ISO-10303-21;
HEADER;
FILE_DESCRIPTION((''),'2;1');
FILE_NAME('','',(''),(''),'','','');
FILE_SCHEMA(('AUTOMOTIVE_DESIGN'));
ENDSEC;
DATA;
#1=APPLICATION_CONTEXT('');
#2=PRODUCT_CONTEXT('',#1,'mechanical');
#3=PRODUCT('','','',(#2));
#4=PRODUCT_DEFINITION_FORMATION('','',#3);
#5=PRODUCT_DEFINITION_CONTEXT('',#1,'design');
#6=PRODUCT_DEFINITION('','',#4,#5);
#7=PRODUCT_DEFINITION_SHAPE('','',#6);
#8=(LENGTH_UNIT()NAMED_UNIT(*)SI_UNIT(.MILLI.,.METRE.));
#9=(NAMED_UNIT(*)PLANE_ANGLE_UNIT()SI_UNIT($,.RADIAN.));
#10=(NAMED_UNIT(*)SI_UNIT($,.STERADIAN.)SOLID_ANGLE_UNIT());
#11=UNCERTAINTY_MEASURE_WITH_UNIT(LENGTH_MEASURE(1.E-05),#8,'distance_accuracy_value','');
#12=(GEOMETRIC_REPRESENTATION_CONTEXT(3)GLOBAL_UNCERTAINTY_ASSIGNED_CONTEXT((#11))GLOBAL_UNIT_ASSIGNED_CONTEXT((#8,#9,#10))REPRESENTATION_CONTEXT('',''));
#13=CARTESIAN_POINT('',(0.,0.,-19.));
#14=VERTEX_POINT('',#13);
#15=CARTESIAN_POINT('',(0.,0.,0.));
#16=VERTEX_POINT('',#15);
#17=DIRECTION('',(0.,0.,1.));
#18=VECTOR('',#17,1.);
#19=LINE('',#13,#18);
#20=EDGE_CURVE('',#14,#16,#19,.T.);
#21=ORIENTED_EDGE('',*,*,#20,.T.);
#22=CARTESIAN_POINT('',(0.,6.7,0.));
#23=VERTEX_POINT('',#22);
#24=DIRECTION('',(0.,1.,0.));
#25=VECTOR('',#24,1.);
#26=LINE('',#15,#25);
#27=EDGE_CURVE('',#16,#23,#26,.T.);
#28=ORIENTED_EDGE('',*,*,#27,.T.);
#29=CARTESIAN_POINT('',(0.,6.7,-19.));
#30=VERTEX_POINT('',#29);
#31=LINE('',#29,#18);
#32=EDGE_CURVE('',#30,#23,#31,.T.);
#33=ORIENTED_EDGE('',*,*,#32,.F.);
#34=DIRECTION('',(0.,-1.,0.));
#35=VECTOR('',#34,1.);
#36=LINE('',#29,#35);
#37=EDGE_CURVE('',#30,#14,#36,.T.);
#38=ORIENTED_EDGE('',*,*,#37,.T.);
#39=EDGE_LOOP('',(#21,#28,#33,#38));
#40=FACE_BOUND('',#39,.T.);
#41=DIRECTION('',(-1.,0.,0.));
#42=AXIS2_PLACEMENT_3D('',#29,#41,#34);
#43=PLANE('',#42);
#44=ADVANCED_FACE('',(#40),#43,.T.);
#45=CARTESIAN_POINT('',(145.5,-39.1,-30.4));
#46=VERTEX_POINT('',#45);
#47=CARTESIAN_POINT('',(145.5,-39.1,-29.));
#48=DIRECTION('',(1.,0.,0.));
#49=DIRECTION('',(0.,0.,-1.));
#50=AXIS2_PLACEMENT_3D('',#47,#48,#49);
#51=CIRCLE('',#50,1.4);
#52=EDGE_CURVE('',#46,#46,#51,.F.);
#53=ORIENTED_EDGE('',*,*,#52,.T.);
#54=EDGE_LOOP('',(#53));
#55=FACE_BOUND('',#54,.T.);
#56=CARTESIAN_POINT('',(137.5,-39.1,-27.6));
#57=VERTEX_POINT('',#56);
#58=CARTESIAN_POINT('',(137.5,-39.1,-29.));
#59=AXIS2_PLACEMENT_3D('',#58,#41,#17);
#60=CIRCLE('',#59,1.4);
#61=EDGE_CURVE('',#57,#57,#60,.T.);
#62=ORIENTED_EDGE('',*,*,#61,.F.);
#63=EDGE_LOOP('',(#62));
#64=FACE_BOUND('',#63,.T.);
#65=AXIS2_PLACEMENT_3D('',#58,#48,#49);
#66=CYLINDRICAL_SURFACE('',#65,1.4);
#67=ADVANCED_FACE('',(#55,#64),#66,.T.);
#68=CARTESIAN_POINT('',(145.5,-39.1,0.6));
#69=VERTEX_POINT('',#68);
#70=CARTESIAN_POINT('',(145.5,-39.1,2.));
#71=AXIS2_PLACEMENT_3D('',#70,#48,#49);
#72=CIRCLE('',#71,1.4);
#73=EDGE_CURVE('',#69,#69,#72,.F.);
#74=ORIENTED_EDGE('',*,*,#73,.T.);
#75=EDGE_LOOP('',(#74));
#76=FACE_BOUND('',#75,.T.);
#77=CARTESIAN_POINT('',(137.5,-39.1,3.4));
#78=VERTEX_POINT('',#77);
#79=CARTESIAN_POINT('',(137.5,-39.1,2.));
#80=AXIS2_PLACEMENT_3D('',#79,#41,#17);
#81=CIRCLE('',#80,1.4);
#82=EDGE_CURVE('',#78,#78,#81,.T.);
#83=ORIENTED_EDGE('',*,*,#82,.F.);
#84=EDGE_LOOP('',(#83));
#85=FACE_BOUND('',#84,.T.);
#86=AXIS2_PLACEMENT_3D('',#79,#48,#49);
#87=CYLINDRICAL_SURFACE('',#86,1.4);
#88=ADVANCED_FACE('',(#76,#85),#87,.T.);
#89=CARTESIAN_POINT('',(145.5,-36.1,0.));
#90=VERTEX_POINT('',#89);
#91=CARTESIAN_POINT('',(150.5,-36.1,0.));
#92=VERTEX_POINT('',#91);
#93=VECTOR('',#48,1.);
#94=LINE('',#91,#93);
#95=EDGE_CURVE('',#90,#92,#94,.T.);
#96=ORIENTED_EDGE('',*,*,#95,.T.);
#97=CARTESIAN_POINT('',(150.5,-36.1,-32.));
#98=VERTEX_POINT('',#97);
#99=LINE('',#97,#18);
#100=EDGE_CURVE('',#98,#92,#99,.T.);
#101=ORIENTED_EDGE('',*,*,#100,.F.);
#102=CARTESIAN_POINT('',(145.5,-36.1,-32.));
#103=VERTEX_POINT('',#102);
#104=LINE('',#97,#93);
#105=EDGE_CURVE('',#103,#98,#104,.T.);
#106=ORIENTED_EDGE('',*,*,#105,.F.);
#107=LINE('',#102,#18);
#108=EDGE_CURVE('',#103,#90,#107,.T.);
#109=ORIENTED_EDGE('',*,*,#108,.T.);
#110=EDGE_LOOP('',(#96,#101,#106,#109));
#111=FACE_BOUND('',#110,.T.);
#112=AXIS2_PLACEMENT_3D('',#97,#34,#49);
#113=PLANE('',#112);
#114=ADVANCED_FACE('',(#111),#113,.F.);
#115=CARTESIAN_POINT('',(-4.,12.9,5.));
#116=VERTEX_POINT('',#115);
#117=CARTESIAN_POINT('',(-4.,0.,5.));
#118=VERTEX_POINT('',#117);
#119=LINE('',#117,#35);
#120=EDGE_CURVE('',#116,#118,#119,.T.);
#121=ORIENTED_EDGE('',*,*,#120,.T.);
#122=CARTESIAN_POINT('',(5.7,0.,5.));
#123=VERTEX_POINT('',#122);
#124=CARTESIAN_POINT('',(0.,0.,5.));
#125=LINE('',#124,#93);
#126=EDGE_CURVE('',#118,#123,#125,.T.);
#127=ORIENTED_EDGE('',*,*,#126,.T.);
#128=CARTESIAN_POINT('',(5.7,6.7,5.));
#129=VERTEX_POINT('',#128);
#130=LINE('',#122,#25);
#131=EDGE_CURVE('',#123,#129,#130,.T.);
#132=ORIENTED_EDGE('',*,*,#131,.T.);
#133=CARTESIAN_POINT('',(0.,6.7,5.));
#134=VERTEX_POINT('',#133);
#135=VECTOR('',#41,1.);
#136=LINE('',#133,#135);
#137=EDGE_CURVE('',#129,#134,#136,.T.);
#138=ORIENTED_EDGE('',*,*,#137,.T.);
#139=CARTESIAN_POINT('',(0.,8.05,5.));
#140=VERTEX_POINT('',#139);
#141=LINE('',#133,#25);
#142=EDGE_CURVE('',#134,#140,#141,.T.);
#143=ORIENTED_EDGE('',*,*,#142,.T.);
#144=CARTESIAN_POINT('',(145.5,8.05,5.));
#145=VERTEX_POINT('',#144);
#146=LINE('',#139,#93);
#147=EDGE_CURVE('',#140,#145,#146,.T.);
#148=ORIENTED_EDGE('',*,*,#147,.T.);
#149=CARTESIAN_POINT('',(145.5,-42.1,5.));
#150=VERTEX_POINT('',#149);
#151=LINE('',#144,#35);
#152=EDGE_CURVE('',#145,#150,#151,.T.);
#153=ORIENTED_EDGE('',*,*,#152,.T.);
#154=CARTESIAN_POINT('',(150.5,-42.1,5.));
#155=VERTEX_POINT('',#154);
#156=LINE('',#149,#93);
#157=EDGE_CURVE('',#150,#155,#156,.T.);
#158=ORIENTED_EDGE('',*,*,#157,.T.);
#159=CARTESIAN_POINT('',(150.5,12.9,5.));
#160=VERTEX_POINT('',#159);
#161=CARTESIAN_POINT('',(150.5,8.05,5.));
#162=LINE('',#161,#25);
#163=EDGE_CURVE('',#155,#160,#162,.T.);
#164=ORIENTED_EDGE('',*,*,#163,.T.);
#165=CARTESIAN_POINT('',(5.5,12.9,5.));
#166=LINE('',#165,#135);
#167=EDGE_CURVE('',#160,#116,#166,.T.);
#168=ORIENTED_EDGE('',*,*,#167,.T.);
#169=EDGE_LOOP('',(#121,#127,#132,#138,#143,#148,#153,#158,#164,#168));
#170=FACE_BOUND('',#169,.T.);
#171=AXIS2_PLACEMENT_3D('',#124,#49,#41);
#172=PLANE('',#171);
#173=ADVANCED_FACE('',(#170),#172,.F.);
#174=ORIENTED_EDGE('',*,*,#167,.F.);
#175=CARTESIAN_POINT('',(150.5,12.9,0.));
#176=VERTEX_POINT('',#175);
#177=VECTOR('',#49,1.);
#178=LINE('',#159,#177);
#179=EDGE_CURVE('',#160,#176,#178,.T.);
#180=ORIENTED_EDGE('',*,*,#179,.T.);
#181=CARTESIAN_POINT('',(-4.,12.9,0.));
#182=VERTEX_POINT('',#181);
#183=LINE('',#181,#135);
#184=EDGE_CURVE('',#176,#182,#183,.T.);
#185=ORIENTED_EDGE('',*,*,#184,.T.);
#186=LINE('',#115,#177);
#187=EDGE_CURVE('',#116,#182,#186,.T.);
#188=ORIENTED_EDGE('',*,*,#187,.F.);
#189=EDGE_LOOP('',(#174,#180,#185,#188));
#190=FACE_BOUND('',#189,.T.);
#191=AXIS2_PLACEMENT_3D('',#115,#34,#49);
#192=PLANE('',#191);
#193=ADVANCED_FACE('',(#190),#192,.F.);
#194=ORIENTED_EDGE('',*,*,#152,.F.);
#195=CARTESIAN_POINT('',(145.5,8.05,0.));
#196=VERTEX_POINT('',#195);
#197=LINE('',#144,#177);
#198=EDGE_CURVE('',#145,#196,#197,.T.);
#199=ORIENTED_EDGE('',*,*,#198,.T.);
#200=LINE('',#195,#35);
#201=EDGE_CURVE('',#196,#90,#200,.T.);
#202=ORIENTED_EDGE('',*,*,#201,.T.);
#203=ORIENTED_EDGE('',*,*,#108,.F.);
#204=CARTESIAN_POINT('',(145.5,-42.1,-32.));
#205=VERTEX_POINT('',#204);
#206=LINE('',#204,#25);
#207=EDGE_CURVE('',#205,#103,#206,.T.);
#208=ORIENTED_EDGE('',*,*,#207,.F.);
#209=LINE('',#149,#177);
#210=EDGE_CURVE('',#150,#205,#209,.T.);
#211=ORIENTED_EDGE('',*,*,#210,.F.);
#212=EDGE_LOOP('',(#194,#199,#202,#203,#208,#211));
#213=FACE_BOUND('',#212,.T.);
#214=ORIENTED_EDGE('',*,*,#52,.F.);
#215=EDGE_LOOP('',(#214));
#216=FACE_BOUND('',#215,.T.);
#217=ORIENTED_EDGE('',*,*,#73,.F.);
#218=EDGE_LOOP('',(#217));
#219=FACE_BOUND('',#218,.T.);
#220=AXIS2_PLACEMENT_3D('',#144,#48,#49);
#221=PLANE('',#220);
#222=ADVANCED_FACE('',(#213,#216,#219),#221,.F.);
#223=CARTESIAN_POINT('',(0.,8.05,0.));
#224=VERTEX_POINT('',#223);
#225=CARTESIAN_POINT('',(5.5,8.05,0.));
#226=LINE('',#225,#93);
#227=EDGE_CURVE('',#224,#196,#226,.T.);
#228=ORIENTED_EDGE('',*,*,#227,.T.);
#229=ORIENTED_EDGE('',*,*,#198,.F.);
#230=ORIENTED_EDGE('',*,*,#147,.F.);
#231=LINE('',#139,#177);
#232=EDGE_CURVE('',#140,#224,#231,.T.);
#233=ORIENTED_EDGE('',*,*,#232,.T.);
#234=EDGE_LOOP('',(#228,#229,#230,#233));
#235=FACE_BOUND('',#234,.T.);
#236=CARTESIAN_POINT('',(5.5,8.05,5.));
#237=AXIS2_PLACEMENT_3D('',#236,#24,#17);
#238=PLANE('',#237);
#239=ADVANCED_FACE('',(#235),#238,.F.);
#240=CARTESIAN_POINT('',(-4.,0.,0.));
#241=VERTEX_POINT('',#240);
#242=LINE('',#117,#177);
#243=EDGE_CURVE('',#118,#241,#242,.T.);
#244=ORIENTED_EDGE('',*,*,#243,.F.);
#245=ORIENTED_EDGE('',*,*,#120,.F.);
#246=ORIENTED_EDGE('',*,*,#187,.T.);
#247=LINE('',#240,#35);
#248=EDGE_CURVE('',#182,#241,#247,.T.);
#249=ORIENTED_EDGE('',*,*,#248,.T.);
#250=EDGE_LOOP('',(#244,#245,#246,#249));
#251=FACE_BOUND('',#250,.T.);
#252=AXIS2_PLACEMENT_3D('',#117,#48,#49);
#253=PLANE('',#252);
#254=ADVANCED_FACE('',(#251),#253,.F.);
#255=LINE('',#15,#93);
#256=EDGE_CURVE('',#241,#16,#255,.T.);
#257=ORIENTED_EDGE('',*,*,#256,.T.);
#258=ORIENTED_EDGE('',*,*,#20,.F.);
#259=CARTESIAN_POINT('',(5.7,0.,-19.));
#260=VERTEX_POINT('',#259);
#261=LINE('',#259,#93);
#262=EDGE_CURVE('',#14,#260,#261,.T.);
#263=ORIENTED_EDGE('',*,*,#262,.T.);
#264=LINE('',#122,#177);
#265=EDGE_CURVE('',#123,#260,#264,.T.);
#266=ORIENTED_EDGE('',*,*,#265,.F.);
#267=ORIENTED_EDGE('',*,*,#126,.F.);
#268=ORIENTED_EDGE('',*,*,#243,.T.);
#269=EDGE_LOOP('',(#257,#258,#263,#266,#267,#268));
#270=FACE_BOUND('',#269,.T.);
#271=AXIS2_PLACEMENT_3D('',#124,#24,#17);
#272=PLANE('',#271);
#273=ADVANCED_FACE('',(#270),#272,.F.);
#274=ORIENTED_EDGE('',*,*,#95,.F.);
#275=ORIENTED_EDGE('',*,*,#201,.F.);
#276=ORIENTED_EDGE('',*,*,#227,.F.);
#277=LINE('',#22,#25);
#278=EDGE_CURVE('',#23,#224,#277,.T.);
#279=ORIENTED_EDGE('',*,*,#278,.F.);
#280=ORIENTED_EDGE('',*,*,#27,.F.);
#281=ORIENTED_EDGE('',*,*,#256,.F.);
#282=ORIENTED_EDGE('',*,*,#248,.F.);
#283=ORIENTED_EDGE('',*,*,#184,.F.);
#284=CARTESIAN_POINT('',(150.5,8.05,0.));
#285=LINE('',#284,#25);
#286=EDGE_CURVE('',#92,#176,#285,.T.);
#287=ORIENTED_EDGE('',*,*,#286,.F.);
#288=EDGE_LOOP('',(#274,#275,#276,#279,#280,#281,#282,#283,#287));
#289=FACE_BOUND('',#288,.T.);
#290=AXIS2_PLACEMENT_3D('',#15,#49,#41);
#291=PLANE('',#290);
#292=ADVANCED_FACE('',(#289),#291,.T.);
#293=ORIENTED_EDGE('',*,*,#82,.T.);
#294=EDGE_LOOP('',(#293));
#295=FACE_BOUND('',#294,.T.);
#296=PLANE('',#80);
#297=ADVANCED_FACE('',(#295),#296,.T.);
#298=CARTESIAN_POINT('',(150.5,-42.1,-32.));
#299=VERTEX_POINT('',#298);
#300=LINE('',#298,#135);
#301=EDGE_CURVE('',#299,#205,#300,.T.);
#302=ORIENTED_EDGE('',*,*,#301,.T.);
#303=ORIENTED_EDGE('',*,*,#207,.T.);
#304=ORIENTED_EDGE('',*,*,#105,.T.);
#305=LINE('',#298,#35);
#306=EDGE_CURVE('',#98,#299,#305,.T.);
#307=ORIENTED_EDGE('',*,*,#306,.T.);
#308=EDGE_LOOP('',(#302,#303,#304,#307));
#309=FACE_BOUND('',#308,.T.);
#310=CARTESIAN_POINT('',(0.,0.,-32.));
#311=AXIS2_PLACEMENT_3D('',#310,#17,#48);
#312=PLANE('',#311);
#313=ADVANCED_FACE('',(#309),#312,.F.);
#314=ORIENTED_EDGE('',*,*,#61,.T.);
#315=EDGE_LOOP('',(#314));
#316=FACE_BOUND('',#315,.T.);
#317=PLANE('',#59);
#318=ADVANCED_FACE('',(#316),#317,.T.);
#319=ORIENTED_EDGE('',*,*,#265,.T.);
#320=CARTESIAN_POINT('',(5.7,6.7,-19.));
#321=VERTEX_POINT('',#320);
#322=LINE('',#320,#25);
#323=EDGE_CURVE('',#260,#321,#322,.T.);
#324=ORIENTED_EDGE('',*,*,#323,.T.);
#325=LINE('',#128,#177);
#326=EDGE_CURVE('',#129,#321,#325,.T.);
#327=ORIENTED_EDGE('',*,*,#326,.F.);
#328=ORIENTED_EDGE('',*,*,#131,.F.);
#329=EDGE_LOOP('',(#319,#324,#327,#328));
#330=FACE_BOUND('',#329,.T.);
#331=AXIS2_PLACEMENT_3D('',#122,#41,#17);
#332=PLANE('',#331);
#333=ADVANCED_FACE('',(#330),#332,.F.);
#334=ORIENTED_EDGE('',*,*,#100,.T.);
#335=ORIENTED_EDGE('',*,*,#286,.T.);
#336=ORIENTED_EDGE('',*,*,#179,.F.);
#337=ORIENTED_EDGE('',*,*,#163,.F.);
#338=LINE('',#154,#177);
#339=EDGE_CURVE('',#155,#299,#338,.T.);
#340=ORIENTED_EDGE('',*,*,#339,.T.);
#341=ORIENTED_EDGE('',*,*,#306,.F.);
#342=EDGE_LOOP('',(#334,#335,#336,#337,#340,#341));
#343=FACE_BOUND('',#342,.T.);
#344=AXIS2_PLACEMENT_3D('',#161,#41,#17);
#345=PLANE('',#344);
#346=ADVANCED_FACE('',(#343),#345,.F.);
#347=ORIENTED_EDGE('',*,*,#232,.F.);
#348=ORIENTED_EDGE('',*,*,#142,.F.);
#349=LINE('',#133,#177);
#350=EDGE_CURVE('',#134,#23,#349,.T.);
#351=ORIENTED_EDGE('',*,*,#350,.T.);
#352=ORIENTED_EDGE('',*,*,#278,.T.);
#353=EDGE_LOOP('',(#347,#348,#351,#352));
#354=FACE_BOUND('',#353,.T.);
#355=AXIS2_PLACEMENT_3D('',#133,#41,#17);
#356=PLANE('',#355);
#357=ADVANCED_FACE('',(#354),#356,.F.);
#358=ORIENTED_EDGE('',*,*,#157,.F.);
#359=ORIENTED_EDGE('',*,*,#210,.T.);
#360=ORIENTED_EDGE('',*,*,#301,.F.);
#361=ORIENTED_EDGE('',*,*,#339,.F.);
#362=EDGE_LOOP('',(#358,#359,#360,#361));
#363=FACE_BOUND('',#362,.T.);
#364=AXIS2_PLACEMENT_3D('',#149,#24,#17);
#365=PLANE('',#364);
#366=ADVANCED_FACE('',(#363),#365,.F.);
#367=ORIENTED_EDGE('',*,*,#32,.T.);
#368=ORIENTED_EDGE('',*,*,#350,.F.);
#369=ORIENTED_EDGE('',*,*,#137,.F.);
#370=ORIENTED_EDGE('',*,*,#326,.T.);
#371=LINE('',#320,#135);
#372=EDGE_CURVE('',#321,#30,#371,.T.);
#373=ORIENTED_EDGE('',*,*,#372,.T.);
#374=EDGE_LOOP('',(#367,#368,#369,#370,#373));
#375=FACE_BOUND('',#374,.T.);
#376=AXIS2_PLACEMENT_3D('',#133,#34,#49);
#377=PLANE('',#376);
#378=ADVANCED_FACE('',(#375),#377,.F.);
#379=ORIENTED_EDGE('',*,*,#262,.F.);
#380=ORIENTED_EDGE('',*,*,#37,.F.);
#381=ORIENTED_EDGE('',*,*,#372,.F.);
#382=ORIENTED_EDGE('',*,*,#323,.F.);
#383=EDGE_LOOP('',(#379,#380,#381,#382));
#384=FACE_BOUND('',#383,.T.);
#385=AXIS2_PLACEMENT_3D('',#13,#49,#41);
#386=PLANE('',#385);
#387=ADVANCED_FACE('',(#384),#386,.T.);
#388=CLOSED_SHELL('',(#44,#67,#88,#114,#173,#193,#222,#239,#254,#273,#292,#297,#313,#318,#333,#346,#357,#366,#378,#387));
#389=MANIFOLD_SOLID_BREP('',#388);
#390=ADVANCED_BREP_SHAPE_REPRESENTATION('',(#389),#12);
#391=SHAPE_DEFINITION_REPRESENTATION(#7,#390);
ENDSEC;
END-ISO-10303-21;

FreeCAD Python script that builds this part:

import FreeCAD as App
import Part
import Sketcher
from FreeCAD import Vector


def add_polygon(sketch, points):
    """Adds a closed chain of lines whose ends are joined by coincident constraints."""
    first, n = sketch.GeometryCount, len(points)
    for a, b in zip(points, points[1:] + points[:1]):
        sketch.addGeometry(Part.LineSegment(App.Vector(*a, 0), App.Vector(*b, 0)), False)
    for i in range(n):
        sketch.addConstraint(Sketcher.Constraint("Coincident", first + i, 2, first + (i + 1) % n, 1))

doc = App.newDocument("Part")
body = doc.addObject("PartDesign::Body", "Body")

sketch1 = doc.addObject("Sketcher::SketchObject", "Sketch")
body.addObject(sketch1)
sketch1.AttachmentSupport = (doc.XY_Plane, [""])
sketch1.MapMode = "FlatFace"
add_polygon(sketch1, [(0, 6.7), (0, 8.1), (145.5, 8.1), (145.5, -42.1), (150.5, -42.1), (150.5, 12.9), (-4, 12.9), (-4, 0), (5.7, 0), (5.7, 6.7)])
sketch1.addConstraint(Sketcher.Constraint("Vertical", 0))
sketch1.addConstraint(Sketcher.Constraint("Horizontal", 1))
sketch1.addConstraint(Sketcher.Constraint("Vertical", 2))
sketch1.addConstraint(Sketcher.Constraint("Horizontal", 3))
sketch1.addConstraint(Sketcher.Constraint("Vertical", 4))
sketch1.addConstraint(Sketcher.Constraint("Horizontal", 5))
sketch1.addConstraint(Sketcher.Constraint("Vertical", 6))
sketch1.addConstraint(Sketcher.Constraint("Horizontal", 7))
sketch1.addConstraint(Sketcher.Constraint("Vertical", 8))
sketch1.addConstraint(Sketcher.Constraint("Horizontal", 9))
sketch1.addConstraint(Sketcher.Constraint("PointOnObject", 0, 2, -2))
sketch1.addConstraint(Sketcher.Constraint("PointOnObject", 6, 2, -1))
sketch1.addConstraint(Sketcher.Constraint("DistanceX", 3, 1, 3, 2, 5.0))
sketch1.addConstraint(Sketcher.Constraint("DistanceY", 4, 1, 4, 2, 55.0))
sketch1.addConstraint(Sketcher.Constraint("DistanceX", 1, 1, 1, 2, 145.5))
sketch1.addConstraint(Sketcher.Constraint("DistanceX", 5, 2, 5, 1, 154.5))
sketch1.addConstraint(Sketcher.Constraint("DistanceX", 7, 1, 7, 2, 9.7))
sketch1.addConstraint(Sketcher.Constraint("DistanceY", 6, 2, 6, 1, 12.9))
sketch1.addConstraint(Sketcher.Constraint("DistanceY", 8, 1, 8, 2, 6.7))
sketch1.addConstraint(Sketcher.Constraint("DistanceY", 0, 1, 0, 2, 1.35))
pad1 = doc.addObject("PartDesign::Pad", "Pad")
body.addObject(pad1)
pad1.Profile = sketch1
pad1.Length = 5

sketch2 = doc.addObject("Sketcher::SketchObject", "Sketch001")
body.addObject(sketch2)
sketch2.AttachmentSupport = (doc.XY_Plane, [""])
sketch2.MapMode = "FlatFace"
sketch2.AttachmentOffset = App.Placement(Vector(0, 0, 5), App.Rotation())
add_polygon(sketch2, [(0, 7), (0, 0), (6, 0), (6, 7)])
sketch2.addConstraint(Sketcher.Constraint("Vertical", 0))
sketch2.addConstraint(Sketcher.Constraint("Horizontal", 1))
sketch2.addConstraint(Sketcher.Constraint("Vertical", 2))
sketch2.addConstraint(Sketcher.Constraint("Horizontal", 3))
sketch2.addConstraint(Sketcher.Constraint("Coincident", 0, 2, -1, 1))
sketch2.addConstraint(Sketcher.Constraint("DistanceX", 1, 1, 1, 2, 5.7))
sketch2.addConstraint(Sketcher.Constraint("DistanceY", 0, 2, 0, 1, 6.7))
pad2 = doc.addObject("PartDesign::Pad", "Pad001")
body.addObject(pad2)
pad2.Profile = sketch2
pad2.Length = 24
pad2.Reversed = True

sketch3 = doc.addObject("Sketcher::SketchObject", "Sketch002")
body.addObject(sketch3)
sketch3.AttachmentSupport = (doc.XY_Plane, [""])
sketch3.MapMode = "FlatFace"
add_polygon(sketch3, [(150, -36), (150, -42), (146, -42), (146, -36)])
sketch3.addConstraint(Sketcher.Constraint("Vertical", 0))
sketch3.addConstraint(Sketcher.Constraint("Horizontal", 1))
sketch3.addConstraint(Sketcher.Constraint("Vertical", 2))
sketch3.addConstraint(Sketcher.Constraint("Horizontal", 3))
sketch3.addConstraint(Sketcher.Constraint("DistanceX", 1, 2, 1, 1, 5.0))
sketch3.addConstraint(Sketcher.Constraint("DistanceY", 0, 2, 0, 1, 6.0))
sketch3.addConstraint(Sketcher.Constraint("DistanceX", -1, 1, 0, 2, 150.5))
sketch3.addConstraint(Sketcher.Constraint("DistanceY", 0, 2, -1, 1, 42.1))
pad3 = doc.addObject("PartDesign::Pad", "Pad002")
body.addObject(pad3)
pad3.Profile = sketch3
pad3.Length = 32
pad3.Reversed = True

sketch4 = doc.addObject("Sketcher::SketchObject", "Sketch003")
body.addObject(sketch4)
sketch4.AttachmentSupport = (doc.YZ_Plane, [""])
sketch4.MapMode = "FlatFace"
sketch4.AttachmentOffset = App.Placement(Vector(0, 0, 145.5), App.Rotation())
sketch4.addGeometry(Part.Circle(Vector(-39.1, -29, 0), Vector(0, 0, 1), 1.4), False)
sketch4.addGeometry(Part.Circle(Vector(-39.1, 2, 0), Vector(0, 0, 1), 1.4), False)
sketch4.addConstraint(Sketcher.Constraint("Equal", 0, 1))
sketch4.addConstraint(Sketcher.Constraint("Vertical", 0, 3, 1, 3))
sketch4.addConstraint(Sketcher.Constraint("Diameter", 0, 2.8))
sketch4.addConstraint(Sketcher.Constraint("DistanceY", 0, 3, -1, 1, 29.0))
sketch4.addConstraint(Sketcher.Constraint("DistanceY", -1, 1, 1, 3, 2.0))
sketch4.addConstraint(Sketcher.Constraint("DistanceX", 0, 3, -1, 1, 39.1))
pad4 = doc.addObject("PartDesign::Pad", "Pad003")
body.addObject(pad4)
pad4.Profile = sketch4
pad4.Length = 8
pad4.Reversed = True

doc.recompute()
